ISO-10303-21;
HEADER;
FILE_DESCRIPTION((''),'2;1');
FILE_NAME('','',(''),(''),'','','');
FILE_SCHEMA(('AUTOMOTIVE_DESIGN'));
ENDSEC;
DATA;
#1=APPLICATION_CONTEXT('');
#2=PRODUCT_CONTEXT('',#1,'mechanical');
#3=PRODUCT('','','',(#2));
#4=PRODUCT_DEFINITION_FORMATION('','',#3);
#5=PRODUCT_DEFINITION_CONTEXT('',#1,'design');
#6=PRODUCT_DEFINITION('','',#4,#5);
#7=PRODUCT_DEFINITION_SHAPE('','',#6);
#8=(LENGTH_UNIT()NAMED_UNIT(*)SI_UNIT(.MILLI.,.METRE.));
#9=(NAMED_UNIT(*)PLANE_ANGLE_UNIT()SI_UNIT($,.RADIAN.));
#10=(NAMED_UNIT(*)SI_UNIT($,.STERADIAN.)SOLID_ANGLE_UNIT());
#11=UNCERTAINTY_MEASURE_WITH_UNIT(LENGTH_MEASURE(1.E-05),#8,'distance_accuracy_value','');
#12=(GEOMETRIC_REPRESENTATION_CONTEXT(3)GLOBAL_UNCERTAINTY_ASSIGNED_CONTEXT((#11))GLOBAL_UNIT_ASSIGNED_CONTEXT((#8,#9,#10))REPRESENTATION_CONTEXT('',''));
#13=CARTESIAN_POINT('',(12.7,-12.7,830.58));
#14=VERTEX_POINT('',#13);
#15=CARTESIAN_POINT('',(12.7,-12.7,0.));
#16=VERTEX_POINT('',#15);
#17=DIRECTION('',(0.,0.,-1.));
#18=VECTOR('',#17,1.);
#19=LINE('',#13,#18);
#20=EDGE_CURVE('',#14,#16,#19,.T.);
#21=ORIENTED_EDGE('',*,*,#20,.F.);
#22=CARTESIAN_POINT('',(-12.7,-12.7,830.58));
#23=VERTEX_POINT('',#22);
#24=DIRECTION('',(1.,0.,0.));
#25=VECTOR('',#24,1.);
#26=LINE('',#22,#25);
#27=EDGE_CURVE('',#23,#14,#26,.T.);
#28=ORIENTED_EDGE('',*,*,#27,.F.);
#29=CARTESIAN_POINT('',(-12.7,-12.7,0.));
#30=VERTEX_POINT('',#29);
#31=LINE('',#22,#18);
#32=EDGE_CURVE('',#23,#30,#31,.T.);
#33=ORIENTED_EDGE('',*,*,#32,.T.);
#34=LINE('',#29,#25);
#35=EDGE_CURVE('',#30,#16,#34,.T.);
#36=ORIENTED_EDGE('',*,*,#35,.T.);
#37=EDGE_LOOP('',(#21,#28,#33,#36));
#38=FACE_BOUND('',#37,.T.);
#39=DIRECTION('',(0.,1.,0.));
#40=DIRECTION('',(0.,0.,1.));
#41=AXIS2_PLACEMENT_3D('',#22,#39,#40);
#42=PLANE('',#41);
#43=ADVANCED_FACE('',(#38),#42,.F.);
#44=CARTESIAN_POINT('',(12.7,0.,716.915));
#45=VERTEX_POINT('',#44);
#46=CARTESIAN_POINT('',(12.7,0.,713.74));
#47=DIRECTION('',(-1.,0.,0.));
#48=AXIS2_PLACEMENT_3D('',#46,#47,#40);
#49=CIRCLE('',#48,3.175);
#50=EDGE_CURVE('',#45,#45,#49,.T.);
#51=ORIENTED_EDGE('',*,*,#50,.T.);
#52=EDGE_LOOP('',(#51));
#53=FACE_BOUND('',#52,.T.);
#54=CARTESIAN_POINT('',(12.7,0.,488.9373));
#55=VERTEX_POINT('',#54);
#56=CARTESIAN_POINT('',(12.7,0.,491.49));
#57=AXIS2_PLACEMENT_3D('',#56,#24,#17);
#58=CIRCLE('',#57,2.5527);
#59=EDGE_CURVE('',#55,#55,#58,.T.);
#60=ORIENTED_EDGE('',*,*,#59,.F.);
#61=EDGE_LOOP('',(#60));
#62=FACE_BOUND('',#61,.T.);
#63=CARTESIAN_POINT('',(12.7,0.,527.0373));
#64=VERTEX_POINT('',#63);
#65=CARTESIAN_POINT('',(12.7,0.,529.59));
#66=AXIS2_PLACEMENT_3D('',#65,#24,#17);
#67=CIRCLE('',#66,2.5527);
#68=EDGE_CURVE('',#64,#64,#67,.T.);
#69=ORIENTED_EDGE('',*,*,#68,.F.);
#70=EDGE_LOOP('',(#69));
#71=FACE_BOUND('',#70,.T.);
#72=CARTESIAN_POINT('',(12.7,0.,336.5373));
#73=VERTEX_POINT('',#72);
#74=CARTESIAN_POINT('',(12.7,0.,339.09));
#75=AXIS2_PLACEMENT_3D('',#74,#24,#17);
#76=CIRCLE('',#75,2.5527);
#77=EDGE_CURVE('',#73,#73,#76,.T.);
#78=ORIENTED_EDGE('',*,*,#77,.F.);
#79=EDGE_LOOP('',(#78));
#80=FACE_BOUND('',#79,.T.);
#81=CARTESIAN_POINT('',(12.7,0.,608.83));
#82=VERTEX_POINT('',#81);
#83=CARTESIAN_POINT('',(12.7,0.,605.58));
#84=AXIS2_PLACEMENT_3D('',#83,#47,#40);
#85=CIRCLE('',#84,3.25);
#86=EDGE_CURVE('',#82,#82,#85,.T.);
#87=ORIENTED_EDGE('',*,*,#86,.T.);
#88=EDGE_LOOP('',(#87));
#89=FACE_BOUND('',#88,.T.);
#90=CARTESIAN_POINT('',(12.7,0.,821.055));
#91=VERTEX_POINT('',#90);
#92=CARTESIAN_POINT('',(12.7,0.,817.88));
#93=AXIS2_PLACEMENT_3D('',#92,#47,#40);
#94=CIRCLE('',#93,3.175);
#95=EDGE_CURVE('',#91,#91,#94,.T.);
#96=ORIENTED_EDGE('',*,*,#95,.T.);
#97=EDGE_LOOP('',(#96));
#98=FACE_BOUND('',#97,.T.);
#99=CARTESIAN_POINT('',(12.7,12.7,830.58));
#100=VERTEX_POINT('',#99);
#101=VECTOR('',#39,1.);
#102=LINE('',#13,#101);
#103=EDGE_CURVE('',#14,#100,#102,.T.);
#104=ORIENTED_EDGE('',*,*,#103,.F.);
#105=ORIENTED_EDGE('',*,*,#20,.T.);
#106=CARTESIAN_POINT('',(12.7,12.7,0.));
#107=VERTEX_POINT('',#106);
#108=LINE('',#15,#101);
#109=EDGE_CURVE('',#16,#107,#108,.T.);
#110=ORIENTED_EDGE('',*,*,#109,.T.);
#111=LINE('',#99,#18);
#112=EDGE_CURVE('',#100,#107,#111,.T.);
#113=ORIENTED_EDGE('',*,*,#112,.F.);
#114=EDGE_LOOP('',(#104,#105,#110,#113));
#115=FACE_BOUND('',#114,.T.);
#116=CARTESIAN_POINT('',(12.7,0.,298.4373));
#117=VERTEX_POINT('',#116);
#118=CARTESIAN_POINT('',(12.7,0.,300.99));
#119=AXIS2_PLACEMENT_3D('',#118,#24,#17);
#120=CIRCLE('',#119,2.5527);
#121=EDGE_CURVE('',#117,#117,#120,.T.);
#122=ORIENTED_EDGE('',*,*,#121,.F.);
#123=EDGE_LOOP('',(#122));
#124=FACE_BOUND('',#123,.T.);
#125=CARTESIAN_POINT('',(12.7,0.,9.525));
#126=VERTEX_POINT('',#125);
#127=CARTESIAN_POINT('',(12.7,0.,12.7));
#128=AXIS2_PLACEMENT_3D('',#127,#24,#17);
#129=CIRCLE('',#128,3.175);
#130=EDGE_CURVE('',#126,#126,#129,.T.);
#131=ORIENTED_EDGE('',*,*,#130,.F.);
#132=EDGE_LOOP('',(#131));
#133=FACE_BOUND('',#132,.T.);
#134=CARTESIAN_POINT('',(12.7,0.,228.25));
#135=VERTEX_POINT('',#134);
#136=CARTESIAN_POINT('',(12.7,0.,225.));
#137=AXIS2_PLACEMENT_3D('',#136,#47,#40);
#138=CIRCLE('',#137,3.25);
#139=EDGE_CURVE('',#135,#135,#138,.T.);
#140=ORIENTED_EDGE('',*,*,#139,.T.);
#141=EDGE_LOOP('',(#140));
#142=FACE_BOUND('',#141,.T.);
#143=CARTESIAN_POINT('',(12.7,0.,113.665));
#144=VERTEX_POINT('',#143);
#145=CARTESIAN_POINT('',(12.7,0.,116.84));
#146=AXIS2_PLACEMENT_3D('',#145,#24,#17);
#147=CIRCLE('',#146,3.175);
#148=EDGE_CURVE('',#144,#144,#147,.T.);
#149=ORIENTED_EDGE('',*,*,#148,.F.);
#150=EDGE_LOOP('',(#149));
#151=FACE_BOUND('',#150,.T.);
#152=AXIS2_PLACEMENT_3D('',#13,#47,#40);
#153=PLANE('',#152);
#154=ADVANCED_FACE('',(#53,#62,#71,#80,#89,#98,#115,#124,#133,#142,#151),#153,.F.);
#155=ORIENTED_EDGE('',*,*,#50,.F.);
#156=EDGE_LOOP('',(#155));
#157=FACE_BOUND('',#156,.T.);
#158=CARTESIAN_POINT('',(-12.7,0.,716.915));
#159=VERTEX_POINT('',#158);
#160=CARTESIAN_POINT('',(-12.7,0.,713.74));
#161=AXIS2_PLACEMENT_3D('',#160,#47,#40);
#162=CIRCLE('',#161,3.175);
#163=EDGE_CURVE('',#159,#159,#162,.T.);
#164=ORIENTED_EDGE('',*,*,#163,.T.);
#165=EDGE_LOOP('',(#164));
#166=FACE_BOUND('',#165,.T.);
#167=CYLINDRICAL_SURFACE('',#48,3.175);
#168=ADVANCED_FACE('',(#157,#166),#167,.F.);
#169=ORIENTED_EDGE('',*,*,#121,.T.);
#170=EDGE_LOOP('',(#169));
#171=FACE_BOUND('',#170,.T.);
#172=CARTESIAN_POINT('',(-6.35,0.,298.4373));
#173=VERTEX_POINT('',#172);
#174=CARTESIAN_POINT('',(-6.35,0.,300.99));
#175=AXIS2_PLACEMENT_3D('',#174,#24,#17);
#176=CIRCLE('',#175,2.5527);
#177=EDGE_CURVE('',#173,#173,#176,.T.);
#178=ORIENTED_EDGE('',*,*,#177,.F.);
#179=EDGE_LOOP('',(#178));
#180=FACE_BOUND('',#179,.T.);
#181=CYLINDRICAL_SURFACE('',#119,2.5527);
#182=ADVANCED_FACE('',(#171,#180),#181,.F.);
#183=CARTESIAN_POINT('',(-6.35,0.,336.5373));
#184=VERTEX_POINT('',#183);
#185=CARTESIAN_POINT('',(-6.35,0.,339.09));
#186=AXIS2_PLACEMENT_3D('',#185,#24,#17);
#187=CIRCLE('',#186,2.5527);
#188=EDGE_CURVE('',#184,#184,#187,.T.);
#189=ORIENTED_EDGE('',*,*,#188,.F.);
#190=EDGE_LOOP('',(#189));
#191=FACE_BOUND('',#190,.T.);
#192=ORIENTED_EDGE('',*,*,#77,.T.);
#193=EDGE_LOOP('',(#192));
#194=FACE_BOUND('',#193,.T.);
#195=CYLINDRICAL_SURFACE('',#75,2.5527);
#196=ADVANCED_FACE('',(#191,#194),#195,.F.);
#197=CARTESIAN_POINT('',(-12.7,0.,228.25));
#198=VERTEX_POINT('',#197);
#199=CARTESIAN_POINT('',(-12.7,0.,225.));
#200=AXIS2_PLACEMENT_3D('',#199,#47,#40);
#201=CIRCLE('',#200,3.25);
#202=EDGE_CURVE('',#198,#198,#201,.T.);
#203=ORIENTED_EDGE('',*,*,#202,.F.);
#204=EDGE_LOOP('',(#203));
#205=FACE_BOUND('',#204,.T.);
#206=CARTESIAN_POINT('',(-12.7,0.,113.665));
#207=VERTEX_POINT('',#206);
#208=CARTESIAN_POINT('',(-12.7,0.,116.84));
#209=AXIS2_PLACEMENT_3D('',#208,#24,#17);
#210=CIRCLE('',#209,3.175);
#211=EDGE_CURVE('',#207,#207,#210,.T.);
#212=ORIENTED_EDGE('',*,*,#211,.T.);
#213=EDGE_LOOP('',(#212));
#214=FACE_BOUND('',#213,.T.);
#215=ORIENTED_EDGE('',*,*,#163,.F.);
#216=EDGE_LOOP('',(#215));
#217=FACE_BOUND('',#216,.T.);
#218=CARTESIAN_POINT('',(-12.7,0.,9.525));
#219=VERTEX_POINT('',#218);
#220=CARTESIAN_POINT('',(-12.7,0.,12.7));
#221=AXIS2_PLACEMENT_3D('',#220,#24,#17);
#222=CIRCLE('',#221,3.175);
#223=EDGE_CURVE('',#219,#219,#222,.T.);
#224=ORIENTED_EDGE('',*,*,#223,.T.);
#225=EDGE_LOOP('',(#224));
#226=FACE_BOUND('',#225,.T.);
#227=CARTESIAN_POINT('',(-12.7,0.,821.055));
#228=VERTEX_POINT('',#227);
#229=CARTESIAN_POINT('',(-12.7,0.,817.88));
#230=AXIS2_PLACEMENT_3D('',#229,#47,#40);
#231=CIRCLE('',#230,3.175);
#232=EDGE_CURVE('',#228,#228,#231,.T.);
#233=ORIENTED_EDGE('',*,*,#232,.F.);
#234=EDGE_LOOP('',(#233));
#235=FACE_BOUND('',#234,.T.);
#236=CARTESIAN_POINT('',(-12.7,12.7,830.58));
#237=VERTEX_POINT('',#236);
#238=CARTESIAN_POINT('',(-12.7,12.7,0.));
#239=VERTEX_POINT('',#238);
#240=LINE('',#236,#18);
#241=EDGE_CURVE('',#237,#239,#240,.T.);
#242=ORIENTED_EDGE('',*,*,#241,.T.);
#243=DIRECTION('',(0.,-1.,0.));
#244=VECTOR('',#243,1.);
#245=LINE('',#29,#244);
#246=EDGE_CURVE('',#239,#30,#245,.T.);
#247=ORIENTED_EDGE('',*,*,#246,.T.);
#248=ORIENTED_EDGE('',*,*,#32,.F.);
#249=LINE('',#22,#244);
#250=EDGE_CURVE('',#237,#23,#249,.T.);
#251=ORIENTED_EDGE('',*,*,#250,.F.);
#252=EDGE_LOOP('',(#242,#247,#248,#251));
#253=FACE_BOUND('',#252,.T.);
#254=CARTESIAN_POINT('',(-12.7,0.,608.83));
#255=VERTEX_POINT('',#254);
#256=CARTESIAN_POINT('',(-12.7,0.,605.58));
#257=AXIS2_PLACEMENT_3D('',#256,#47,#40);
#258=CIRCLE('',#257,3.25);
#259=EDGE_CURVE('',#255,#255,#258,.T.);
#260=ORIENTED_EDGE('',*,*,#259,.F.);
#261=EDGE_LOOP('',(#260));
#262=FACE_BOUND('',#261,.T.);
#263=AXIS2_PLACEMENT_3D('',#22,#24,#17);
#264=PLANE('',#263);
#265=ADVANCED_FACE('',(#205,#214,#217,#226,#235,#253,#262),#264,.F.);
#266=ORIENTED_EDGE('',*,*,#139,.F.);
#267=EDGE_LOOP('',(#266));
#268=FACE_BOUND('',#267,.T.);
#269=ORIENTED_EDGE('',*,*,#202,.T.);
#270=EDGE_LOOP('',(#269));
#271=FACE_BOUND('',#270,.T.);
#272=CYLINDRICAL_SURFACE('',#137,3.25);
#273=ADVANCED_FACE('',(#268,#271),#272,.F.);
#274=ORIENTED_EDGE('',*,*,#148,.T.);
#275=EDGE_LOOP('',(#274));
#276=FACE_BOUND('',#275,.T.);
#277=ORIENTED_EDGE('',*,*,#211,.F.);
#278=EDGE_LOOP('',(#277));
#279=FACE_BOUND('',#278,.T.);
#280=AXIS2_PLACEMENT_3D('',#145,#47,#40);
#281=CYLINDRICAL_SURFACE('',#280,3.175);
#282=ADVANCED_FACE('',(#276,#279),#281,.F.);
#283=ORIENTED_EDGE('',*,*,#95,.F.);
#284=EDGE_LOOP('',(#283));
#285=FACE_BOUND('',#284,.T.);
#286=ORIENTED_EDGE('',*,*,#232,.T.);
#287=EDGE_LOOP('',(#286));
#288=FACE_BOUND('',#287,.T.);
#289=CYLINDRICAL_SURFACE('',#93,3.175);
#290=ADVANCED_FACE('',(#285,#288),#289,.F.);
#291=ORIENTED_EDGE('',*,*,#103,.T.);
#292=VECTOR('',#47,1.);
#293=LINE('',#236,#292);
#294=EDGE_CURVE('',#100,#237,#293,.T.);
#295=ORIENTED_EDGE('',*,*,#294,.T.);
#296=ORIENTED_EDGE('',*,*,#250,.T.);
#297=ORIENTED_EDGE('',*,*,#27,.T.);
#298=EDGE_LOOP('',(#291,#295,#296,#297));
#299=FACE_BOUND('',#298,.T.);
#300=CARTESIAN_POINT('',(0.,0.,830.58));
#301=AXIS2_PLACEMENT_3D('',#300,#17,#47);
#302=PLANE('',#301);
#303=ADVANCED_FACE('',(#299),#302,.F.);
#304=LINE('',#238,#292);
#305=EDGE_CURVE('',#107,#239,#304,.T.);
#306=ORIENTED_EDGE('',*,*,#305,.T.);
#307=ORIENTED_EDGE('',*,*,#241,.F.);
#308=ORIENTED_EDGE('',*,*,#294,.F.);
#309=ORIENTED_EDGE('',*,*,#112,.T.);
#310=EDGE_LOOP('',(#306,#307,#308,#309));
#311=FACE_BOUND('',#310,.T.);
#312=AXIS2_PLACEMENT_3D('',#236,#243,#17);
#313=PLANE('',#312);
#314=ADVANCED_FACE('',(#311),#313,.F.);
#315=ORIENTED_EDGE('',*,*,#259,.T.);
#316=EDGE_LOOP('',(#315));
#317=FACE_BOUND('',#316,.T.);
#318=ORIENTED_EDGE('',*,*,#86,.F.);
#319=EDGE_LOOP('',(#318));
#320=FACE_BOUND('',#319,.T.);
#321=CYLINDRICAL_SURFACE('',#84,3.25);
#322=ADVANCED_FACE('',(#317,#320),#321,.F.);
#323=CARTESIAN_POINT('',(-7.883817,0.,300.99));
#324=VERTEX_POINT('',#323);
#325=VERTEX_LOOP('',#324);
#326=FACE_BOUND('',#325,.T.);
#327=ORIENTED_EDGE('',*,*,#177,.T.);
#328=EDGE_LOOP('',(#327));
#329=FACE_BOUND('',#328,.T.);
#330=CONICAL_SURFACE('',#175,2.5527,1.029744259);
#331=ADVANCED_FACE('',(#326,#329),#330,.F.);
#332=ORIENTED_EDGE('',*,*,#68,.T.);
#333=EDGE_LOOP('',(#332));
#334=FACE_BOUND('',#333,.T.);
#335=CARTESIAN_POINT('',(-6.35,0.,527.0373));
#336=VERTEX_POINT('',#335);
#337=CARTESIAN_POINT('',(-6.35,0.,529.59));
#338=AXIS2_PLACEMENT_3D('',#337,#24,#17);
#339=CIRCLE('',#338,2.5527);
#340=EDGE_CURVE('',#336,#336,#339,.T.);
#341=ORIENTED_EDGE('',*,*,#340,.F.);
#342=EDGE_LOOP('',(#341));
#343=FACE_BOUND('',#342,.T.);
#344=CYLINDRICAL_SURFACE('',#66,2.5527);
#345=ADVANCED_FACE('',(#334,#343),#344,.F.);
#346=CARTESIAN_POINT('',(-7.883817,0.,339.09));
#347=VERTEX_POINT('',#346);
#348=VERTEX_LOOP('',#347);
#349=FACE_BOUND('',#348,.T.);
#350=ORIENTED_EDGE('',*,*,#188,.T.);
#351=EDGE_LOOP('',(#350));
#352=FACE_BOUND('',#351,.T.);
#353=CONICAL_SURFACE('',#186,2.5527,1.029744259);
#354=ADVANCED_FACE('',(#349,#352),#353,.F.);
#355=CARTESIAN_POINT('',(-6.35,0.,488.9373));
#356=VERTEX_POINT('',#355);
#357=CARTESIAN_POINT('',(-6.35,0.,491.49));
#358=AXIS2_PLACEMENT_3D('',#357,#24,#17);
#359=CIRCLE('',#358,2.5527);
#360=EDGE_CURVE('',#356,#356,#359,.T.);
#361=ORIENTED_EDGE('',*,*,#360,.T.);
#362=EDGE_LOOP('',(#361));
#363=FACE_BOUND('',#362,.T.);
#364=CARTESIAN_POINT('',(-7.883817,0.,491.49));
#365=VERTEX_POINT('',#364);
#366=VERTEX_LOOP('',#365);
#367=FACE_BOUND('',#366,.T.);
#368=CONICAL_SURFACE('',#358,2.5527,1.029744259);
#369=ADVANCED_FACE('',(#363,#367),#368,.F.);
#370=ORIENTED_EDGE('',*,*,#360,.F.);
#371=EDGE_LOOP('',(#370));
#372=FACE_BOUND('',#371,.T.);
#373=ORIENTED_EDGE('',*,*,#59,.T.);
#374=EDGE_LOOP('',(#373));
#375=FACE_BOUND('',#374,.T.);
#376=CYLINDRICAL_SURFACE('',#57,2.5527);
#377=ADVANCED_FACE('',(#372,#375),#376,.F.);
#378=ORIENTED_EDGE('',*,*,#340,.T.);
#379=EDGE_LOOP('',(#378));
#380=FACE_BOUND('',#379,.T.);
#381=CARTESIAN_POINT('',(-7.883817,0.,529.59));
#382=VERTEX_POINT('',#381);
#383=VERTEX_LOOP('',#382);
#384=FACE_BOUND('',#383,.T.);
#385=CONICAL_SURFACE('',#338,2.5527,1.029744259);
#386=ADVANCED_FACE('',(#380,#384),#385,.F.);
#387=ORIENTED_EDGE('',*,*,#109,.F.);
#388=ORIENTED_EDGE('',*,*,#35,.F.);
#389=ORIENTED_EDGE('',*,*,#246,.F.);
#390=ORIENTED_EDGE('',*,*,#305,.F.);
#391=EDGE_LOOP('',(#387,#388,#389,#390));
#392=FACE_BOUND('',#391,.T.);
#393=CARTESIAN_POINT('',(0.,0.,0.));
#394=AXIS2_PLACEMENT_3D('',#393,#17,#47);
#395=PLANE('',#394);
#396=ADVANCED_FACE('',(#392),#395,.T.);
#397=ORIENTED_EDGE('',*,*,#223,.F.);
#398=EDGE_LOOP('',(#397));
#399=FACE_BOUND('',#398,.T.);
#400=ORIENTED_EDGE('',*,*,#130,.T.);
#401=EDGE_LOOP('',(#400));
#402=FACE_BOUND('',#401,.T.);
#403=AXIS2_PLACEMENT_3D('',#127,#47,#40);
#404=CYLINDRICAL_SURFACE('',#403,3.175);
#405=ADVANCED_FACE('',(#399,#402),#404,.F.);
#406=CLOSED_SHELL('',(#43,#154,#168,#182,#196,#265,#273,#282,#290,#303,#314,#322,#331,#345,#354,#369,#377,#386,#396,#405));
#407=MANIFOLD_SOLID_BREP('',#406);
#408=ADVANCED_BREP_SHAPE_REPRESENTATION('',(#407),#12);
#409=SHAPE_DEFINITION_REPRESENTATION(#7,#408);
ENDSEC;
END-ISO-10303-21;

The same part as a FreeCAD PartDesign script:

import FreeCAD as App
import Part
import Sketcher
from FreeCAD import Vector
Q = App.Units.Quantity


def add_polygon(sketch, points):
    """Adds a closed chain of lines whose ends are joined by coincident constraints."""
    first, n = sketch.GeometryCount, len(points)
    for a, b in zip(points, points[1:] + points[:1]):
        sketch.addGeometry(Part.LineSegment(App.Vector(*a, 0), App.Vector(*b, 0)), False)
    for i in range(n):
        sketch.addConstraint(Sketcher.Constraint("Coincident", first + i, 2, first + (i + 1) % n, 1))

doc = App.newDocument("Part")
body = doc.addObject("PartDesign::Body", "Body")

sketch1 = body.newObject("Sketcher::SketchObject", "Sketch")
sketch1.AttachmentSupport = (doc.getObject("XY_Plane"), [""])
sketch1.MapMode = "FlatFace"
add_polygon(sketch1, [(-13, 13), (-13, -13), (13, -13), (13, 13)])
sketch1.addConstraint([
    Sketcher.Constraint("Vertical", 0),
    Sketcher.Constraint("Horizontal", 1),
    Sketcher.Constraint("Vertical", 2),
    Sketcher.Constraint("Horizontal", 3),
    Sketcher.Constraint("Symmetric", 0, 2, 2, 2, -1, 1),
    Sketcher.Constraint("Equal", 3, 0),
    Sketcher.Constraint("DistanceX", 1, 1, 1, 2, Q("1 in")),
])
pad1 = body.newObject("PartDesign::Pad", "Pad")
pad1.Profile = sketch1
pad1.Length = Q("32.7 in")

sketch2 = body.newObject("Sketcher::SketchObject", "Sketch001")
sketch2.AttachmentSupport = (doc.getObject("YZ_Plane"), [""])
sketch2.MapMode = "FlatFace"
sketch2.AttachmentOffset = App.Placement(Vector(0, 0, -0.5 * 25.4), App.Rotation())
sketch2.addGeometry([
    Part.Circle(Vector(0, 12.7, 0), Vector(0, 0, 1), 3.2),
    Part.Circle(Vector(0, 116.8, 0), Vector(0, 0, 1), 3.2),
], False)
sketch2.addConstraint([
    Sketcher.Constraint("Equal", 0, 1),
    Sketcher.Constraint("PointOnObject", 0, 3, -2),
    Sketcher.Constraint("PointOnObject", 1, 3, -2),
    Sketcher.Constraint("Diameter", 0, Q("0.25 in")),
    Sketcher.Constraint("DistanceY", -1, 1, 0, 3, Q("0.5 in")),
    Sketcher.Constraint("DistanceY", -1, 1, 1, 3, Q("4.6 in")),
])
pocket1 = body.newObject("PartDesign::Pocket", "Pocket")
pocket1.Profile = sketch2
pocket1.Type = "ThroughAll"
pocket1.Reversed = True
doc.recompute()

datumplane = body.newObject("PartDesign::Plane", "DatumPlane")
datumplane.AttachmentSupport = (doc.getObject("XY_Plane"), [""])
datumplane.MapMode = "FlatFace"
datumplane.AttachmentOffset = App.Placement(Vector(0, 0, 16.35 * 25.4), App.Rotation())
mirrored = body.newObject("PartDesign::Mirrored", "Mirrored")
mirrored.Originals = [pocket1]
mirrored.MirrorPlane = (datumplane, [""])
body.Tip = mirrored

sketch3 = body.newObject("Sketcher::SketchObject", "Sketch002")
sketch3.AttachmentSupport = (doc.getObject("YZ_Plane"), [""])
sketch3.MapMode = "FlatFace"
sketch3.AttachmentOffset = App.Placement(Vector(0, 0, 0.5 * 25.4), App.Rotation())
sketch3.addGeometry([
    Part.Circle(Vector(0, 301, 0), Vector(0, 0, 1), 2.6),
    Part.Circle(Vector(0, 529.6, 0), Vector(0, 0, 1), 2.6),
    Part.Circle(Vector(0, 491.5, 0), Vector(0, 0, 1), 2.6),
    Part.Circle(Vector(0, 339.1, 0), Vector(0, 0, 1), 2.6),
], False)
sketch3.addConstraint([
    Sketcher.Constraint("Equal", 0, 1),
    Sketcher.Constraint("Equal", 1, 2),
    Sketcher.Constraint("Equal", 2, 3),
    Sketcher.Constraint("PointOnObject", 0, 3, -2),
    Sketcher.Constraint("PointOnObject", 1, 3, -2),
    Sketcher.Constraint("PointOnObject", 2, 3, -2),
    Sketcher.Constraint("PointOnObject", 3, 3, -2),
    Sketcher.Constraint("Diameter", 0, Q("0.201 in")),
    Sketcher.Constraint("DistanceY", 0, 3, 1, 3, Q("9 in")),
    Sketcher.Constraint("DistanceY", 3, 3, 2, 3, Q("6 in")),
    Sketcher.Constraint("DistanceY", 2, 3, 1, 3, Q("1.5 in")),
    Sketcher.Constraint("DistanceY", -1, 1, 0, 3, Q("11.85 in")),
])
doc.recompute()
hole = body.newObject("PartDesign::Hole", "Hole")
hole.Profile = sketch3
hole.ThreadType = "None"
hole.Diameter = Q("0.201 in")
hole.DepthType = "Dimension"
hole.Depth = Q("0.75 in")
hole.DrillPoint = "Angled"
hole.DrillPointAngle = 118

sketch4 = body.newObject("Sketcher::SketchObject", "Sketch003")
sketch4.AttachmentSupport = (doc.getObject("YZ_Plane"), [""])
sketch4.MapMode = "FlatFace"
sketch4.AttachmentOffset = App.Placement(Vector(0, 0, -0.5 * 25.4), App.Rotation())
sketch4.addGeometry([
    Part.Circle(Vector(0, 605.6, 0), Vector(0, 0, 1), 3.2),
    Part.Circle(Vector(0, 225, 0), Vector(0, 0, 1), 3.2),
], False)
sketch4.addConstraint([
    Sketcher.Constraint("Equal", 0, 1),
    Sketcher.Constraint("PointOnObject", 0, 3, -2),
    Sketcher.Constraint("PointOnObject", 1, 3, -2),
    Sketcher.Constraint("Diameter", 0, Q("6.5 mm")),
    Sketcher.Constraint("DistanceY", -1, 1, 0, 3, Q("605.58 mm")),
    Sketcher.Constraint("DistanceY", -1, 1, 1, 3, Q("225 mm")),
])
pocket2 = body.newObject("PartDesign::Pocket", "Pocket001")
pocket2.Profile = sketch4
pocket2.Type = "ThroughAll"
pocket2.Reversed = True

doc.recompute()
